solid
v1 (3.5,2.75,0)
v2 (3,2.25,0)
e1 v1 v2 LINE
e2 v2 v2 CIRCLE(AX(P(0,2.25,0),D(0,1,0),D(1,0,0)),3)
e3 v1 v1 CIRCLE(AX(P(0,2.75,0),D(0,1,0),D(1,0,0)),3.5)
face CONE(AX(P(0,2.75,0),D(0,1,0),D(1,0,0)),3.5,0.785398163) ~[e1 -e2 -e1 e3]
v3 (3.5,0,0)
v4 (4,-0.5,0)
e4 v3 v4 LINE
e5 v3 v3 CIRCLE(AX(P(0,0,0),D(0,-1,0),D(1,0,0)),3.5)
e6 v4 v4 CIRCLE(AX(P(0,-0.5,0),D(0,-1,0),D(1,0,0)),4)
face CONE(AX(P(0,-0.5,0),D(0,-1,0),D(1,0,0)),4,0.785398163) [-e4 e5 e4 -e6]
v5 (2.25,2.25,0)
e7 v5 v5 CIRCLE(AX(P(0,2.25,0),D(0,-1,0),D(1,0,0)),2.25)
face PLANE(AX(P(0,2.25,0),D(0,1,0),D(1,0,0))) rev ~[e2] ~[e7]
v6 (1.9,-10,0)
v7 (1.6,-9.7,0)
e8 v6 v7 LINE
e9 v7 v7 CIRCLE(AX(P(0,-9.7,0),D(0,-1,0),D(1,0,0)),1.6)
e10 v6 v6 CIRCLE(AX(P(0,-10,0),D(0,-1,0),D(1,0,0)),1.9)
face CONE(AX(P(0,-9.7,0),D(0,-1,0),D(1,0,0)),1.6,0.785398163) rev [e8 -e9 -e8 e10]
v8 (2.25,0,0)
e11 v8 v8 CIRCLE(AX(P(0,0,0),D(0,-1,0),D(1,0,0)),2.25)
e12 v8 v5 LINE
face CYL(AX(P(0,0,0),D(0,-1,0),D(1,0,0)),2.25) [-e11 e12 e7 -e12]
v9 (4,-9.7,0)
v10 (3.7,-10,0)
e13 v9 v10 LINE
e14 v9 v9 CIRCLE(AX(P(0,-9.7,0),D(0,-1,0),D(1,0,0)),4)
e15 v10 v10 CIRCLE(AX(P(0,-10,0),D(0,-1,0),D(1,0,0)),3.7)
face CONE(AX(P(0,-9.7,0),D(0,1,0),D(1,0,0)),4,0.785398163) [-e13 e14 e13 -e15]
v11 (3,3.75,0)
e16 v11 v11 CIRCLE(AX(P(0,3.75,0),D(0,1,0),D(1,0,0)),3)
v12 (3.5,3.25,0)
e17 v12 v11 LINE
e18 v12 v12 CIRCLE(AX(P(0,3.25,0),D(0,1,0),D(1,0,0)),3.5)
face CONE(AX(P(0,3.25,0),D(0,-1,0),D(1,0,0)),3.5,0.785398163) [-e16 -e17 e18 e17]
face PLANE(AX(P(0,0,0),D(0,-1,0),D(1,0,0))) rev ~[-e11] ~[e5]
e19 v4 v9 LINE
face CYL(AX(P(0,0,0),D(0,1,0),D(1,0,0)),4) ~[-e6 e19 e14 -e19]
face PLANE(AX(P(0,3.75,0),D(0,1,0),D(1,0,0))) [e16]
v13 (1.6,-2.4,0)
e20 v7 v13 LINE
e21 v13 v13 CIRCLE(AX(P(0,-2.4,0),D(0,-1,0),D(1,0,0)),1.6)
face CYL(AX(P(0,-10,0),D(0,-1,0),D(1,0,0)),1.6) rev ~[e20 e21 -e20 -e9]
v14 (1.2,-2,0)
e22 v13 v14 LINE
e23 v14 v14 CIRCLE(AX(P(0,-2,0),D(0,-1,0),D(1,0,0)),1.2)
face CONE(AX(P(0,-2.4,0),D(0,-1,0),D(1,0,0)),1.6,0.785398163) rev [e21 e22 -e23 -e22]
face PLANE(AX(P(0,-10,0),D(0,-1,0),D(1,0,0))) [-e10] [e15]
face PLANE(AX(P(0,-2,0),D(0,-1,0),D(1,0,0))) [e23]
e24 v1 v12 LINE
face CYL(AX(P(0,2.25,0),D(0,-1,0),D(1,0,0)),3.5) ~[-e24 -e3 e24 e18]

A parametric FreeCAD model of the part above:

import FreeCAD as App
import Part
import Sketcher
Q = App.Units.Quantity


def edges_at(feature, points):
    """Names of the edges that pass closest to the given points."""
    edges = feature.Shape.Edges
    near = lambda p: min(range(len(edges)), key=lambda i: edges[i].distToShape(Part.Vertex(*p))[0])
    return sorted({f"Edge{near(p) + 1}" for p in points})

doc = App.newDocument("Part")
body = doc.addObject("PartDesign::Body", "Body")

# Sketch on XZ plane
sketch1 = doc.addObject("Sketcher::SketchObject", "Sketch")
body.addObject(sketch1)
sketch1.AttachmentSupport = (doc.XZ_Plane, [""])
sketch1.MapMode = "FlatFace"
sketch1.addGeometry(Part.Circle(App.Vector(0, 0, 0), App.Vector(0, 0, 1), 4), False)
sketch1.addConstraint([
    Sketcher.Constraint("Coincident", 0, 3, -1, 1),
    Sketcher.Constraint("Diameter", 0, Q("8 mm")),
])
pad1 = doc.addObject("PartDesign::Pad", "Pad")
body.addObject(pad1)
pad1.Profile = sketch1
pad1.Length = 10

# Sketch on XZ plane
sketch2 = doc.addObject("Sketcher::SketchObject", "Sketch001")
body.addObject(sketch2)
sketch2.AttachmentSupport = (doc.XZ_Plane, [""])
sketch2.MapMode = "FlatFace"
sketch2.addGeometry(Part.Circle(App.Vector(0, 0, 0), App.Vector(0, 0, 1), 2.2), False)
sketch2.addConstraint([
    Sketcher.Constraint("Coincident", 0, 3, -1, 1),
    Sketcher.Constraint("Diameter", 0, Q("4.5 mm")),
])
pad2 = doc.addObject("PartDesign::Pad", "Pad001")
body.addObject(pad2)
pad2.Profile = sketch2
pad2.Length = 2.25
pad2.Reversed = True

# Sketch on XZ plane
sketch3 = doc.addObject("Sketcher::SketchObject", "Sketch002")
body.addObject(sketch3)
sketch3.AttachmentSupport = (doc.XZ_Plane, [""])
sketch3.MapMode = "FlatFace"
sketch3.AttachmentOffset = App.Placement(App.Vector(0, 0, -2.25), App.Rotation())
sketch3.addGeometry(Part.Circle(App.Vector(0, 0, 0), App.Vector(0, 0, 1), 3.5), False)
sketch3.addConstraint([
    Sketcher.Constraint("Coincident", 0, 3, -1, 1),
    Sketcher.Constraint("Diameter", 0, Q("7 mm")),
])
pad3 = doc.addObject("PartDesign::Pad", "Pad002")
body.addObject(pad3)
pad3.Profile = sketch3
pad3.Length = 1.5
pad3.Reversed = True
doc.recompute()

chamfer = doc.addObject("PartDesign::Chamfer", "Chamfer")
body.addObject(chamfer)
chamfer.Base = (pad3, edges_at(pad3, [(-3.5, 3.75, 0), (-3.5, 2.25, 0), (-4, 0, 0)]))
chamfer.Size = 0.5

# Sketch on XZ plane
sketch4 = doc.addObject("Sketcher::SketchObject", "Sketch003")
body.addObject(sketch4)
sketch4.AttachmentSupport = (doc.XZ_Plane, [""])
sketch4.MapMode = "FlatFace"
sketch4.AttachmentOffset = App.Placement(App.Vector(0, 0, 10), App.Rotation())
sketch4.addGeometry(Part.Circle(App.Vector(0, 0, 0), App.Vector(0, 0, 1), 1.6), False)
sketch4.addConstraint([
    Sketcher.Constraint("Coincident", 0, 3, -1, 1),
    Sketcher.Constraint("Diameter", 0, Q("3.2 mm")),
])
pocket1 = doc.addObject("PartDesign::Pocket", "Pocket")
body.addObject(pocket1)
pocket1.Profile = sketch4
pocket1.Length = 8
doc.recompute()

chamfer2 = doc.addObject("PartDesign::Chamfer", "Chamfer001")
body.addObject(chamfer2)
chamfer2.Base = (pocket1, edges_at(pocket1, [(-4, -10, 0), (-1.6, -10, 0)]))
chamfer2.Size = 0.3
doc.recompute()

chamfer3 = doc.addObject("PartDesign::Chamfer", "Chamfer002")
body.addObject(chamfer3)
chamfer3.Base = (chamfer2, edges_at(chamfer2, [(-1.6, -2, 0)]))
chamfer3.Size = 0.4

doc.recompute()
